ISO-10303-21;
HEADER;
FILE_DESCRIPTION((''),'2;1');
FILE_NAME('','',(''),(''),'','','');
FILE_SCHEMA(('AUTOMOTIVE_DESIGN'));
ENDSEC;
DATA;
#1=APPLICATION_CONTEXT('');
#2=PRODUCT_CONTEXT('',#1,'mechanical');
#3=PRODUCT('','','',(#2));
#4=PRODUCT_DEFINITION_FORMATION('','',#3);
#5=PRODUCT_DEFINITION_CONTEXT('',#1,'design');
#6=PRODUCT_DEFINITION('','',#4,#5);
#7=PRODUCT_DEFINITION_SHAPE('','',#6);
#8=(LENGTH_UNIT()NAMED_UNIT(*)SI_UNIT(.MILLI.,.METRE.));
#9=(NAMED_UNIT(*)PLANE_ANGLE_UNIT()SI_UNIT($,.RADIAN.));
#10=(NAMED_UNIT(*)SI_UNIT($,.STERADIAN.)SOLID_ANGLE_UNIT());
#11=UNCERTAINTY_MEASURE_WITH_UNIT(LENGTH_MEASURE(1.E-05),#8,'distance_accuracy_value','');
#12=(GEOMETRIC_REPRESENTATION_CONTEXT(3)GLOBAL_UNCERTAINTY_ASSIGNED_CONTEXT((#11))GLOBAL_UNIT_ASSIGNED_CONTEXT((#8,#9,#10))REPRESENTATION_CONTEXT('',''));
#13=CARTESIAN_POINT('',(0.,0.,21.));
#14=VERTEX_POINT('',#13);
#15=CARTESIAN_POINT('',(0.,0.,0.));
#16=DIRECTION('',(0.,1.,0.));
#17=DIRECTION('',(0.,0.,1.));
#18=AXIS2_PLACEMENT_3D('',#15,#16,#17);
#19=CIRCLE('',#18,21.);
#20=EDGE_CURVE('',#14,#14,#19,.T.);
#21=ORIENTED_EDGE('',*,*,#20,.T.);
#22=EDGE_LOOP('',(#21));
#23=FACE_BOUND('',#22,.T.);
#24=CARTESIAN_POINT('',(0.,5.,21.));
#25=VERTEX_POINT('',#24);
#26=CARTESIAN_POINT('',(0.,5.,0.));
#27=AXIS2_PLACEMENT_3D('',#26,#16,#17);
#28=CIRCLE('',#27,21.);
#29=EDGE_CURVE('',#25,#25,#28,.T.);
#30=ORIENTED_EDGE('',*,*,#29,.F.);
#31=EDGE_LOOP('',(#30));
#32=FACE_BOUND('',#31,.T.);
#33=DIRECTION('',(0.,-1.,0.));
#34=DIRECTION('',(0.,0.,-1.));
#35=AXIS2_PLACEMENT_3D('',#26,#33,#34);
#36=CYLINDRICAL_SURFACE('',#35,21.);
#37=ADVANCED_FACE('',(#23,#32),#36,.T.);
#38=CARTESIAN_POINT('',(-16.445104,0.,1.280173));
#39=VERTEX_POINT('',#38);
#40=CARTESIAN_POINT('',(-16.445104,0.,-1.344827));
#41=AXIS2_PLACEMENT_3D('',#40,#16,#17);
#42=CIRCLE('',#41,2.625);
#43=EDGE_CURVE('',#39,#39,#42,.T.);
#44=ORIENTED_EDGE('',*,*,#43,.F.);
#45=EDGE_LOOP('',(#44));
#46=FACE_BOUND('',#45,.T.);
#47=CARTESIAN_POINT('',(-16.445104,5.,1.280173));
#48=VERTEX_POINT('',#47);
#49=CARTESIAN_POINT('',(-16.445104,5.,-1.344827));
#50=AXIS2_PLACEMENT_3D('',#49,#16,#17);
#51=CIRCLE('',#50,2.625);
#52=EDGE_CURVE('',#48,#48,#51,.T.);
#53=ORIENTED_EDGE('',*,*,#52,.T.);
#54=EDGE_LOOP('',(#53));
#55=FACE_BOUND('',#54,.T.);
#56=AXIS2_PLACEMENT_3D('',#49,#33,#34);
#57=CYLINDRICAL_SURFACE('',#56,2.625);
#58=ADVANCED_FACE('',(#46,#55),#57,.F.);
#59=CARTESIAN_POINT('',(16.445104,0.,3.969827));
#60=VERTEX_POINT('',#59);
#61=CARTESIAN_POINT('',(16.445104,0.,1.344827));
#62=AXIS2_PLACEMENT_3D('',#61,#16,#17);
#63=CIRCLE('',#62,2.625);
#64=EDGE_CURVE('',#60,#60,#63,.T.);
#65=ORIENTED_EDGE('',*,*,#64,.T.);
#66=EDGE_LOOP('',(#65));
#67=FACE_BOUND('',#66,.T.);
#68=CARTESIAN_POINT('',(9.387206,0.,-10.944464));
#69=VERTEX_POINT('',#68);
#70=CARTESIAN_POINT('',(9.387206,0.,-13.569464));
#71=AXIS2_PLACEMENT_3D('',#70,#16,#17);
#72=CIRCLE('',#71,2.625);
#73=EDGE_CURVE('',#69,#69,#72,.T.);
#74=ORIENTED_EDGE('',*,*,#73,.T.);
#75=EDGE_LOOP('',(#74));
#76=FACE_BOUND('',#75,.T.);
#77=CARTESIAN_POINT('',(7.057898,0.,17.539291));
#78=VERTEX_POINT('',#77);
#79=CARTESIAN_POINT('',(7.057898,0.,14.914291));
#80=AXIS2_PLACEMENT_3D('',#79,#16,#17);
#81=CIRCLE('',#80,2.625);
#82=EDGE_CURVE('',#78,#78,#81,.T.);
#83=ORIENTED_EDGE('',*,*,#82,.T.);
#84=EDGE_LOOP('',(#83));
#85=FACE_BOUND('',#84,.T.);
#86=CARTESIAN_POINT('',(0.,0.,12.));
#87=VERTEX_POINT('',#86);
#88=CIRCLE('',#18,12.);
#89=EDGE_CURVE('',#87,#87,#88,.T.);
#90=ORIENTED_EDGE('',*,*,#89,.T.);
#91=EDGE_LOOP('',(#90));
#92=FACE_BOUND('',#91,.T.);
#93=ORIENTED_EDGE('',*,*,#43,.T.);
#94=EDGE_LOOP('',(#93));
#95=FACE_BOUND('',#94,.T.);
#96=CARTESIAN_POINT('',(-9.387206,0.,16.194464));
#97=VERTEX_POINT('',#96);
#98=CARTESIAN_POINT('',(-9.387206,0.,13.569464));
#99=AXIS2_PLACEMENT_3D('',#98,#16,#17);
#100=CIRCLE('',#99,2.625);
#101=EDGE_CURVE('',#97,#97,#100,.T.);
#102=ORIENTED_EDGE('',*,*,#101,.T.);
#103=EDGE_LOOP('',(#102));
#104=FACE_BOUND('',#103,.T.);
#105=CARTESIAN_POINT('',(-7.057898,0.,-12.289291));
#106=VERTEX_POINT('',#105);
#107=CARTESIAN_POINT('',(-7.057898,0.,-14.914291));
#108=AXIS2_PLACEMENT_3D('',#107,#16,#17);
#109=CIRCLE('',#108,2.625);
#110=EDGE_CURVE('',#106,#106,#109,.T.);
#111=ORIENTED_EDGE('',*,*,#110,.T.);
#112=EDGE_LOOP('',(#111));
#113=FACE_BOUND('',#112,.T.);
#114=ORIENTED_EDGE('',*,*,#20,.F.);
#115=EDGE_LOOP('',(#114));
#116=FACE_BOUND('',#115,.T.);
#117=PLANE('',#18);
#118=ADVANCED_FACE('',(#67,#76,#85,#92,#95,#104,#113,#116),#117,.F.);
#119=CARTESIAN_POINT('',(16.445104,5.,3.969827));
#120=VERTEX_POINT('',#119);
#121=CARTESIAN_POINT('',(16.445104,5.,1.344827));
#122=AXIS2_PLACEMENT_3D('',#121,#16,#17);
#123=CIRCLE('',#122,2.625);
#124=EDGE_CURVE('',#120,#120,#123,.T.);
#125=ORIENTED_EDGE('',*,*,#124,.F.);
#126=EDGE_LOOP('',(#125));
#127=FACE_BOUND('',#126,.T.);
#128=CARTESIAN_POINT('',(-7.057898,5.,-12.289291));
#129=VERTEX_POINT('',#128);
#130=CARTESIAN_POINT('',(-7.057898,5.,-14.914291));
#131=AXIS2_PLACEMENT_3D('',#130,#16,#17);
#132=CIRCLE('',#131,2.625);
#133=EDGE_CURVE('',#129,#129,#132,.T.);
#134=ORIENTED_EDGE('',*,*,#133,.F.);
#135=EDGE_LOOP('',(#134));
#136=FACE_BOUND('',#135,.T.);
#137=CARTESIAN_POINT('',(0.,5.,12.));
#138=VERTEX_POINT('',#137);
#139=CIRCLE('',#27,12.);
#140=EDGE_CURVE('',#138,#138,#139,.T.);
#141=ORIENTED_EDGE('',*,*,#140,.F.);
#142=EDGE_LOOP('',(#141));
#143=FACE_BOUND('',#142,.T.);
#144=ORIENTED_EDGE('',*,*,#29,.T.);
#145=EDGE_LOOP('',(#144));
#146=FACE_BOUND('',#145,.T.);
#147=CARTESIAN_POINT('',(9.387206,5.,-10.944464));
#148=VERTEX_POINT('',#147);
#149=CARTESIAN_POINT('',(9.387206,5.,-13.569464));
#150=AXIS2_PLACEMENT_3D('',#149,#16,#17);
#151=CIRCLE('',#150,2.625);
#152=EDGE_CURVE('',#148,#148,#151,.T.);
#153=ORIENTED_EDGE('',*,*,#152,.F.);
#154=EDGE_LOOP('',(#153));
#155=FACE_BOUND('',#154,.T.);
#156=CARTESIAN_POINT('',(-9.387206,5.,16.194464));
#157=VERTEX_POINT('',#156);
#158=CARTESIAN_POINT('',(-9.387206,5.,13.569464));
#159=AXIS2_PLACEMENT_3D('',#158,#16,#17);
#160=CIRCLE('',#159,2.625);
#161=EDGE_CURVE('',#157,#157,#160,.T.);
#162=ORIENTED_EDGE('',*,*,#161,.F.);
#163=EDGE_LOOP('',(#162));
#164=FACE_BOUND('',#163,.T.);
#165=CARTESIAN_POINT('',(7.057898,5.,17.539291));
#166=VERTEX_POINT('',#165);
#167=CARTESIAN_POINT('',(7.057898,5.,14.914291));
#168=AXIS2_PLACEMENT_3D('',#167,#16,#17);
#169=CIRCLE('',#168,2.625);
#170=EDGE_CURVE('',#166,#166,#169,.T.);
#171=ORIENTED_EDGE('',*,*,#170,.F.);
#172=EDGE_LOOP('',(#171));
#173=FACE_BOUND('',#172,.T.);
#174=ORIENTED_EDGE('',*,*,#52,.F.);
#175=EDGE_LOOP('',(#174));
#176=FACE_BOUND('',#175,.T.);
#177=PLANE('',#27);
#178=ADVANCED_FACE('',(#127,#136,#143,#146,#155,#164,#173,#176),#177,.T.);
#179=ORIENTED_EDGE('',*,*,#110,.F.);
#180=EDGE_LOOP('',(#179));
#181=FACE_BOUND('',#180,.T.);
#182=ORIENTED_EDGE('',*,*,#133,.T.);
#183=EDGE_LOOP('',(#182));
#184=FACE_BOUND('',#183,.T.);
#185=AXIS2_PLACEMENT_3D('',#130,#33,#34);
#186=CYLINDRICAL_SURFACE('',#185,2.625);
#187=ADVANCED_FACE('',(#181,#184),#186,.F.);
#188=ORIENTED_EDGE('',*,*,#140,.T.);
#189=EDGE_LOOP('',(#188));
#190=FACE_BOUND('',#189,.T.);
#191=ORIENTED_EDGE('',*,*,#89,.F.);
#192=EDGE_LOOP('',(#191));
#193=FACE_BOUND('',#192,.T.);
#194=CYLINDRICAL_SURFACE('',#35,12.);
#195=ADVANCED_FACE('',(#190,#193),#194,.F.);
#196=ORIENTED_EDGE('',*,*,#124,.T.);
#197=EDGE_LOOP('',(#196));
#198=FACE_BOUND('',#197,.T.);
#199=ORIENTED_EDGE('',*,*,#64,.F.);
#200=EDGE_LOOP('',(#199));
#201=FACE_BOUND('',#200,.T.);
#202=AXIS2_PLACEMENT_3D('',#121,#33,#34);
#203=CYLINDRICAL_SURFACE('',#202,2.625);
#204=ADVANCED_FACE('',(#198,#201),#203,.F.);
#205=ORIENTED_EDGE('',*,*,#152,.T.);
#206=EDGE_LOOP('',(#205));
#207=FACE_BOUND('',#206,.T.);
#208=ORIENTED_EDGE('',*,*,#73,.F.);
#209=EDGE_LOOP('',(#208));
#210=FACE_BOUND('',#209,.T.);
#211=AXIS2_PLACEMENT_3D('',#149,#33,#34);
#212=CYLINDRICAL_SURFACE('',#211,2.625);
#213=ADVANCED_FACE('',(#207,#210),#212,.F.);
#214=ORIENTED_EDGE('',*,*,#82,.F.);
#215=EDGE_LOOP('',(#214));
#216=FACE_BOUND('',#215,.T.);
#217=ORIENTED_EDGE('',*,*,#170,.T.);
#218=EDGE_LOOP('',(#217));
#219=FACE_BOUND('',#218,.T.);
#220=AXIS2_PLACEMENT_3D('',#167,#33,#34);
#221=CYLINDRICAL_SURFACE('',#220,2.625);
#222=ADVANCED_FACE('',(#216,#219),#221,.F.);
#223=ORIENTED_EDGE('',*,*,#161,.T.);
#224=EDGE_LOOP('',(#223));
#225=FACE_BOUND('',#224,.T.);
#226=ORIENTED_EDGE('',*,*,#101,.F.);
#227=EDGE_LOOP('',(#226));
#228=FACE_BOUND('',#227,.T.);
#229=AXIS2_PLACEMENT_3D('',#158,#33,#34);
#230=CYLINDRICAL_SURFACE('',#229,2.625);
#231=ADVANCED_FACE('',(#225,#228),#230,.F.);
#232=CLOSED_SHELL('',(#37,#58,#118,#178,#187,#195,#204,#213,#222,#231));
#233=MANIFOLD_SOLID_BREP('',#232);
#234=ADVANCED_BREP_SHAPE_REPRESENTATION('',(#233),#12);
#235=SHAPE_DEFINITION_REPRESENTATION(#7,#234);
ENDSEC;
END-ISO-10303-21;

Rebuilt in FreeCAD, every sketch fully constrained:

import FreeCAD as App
import Part
import Sketcher

V = App.Vector

doc = App.newDocument("Part")
body = doc.addObject("PartDesign::Body", "Body")

sketch1 = body.newObject("Sketcher::SketchObject", "Sketch")
sketch1.AttachmentSupport = (doc.getObject("XZ_Plane"), [""])
sketch1.MapMode = "FlatFace"
sketch1.addGeometry([
    Part.Circle(V(0, 0, 0), V(0, 0, 1), 21),
    Part.Circle(V(-9.387206, 13.569464, 0), V(0, 0, 1), 2.625),
    Part.Circle(V(7.057898, 14.914291, 0), V(0, 0, 1), 2.625),
    Part.Circle(V(16.445104, 1.344827, 0), V(0, 0, 1), 2.625),
    Part.Circle(V(-16.445104, -1.344827, 0), V(0, 0, 1), 2.625),
    Part.Circle(V(-7.057898, -14.914291, 0), V(0, 0, 1), 2.625),
    Part.Circle(V(0, 0, 0), V(0, 0, 1), 12),
    Part.Circle(V(9.387206, -13.569464, 0), V(0, 0, 1), 2.625),
], False)
sketch1.addConstraint([
    Sketcher.Constraint("Coincident", 0, 3, -1, 1),
    Sketcher.Constraint("Coincident", 6, 3, -1, 1),
    Sketcher.Constraint("Equal", 1, 2),
    Sketcher.Constraint("Equal", 2, 3),
    Sketcher.Constraint("Equal", 3, 4),
    Sketcher.Constraint("Equal", 4, 5),
    Sketcher.Constraint("Equal", 5, 7),
    Sketcher.Constraint("Symmetric", 3, 3, 4, 3, -1, 1),
    Sketcher.Constraint("Symmetric", 2, 3, 5, 3, -1, 1),
    Sketcher.Constraint("Symmetric", 1, 3, 7, 3, -1, 1),
    Sketcher.Constraint("Diameter", 0, 42.0),
    Sketcher.Constraint("Diameter", 6, 24.0),
    Sketcher.Constraint("Diameter", 1, 5.25),
    Sketcher.Constraint("DistanceX", 4, 3, 2, 3, 23.503002),
    Sketcher.Constraint("DistanceY", -1, 1, 2, 3, 14.914291),
    Sketcher.Constraint("DistanceX", 1, 3, 3, 3, 25.83231),
    Sketcher.Constraint("DistanceY", 4, 3, 1, 3, 14.914291),
    Sketcher.Constraint("DistanceX", 1, 3, -1, 1, 9.387206),
    Sketcher.Constraint("DistanceY", -1, 1, 1, 3, 13.569464),
])
pad1 = body.newObject("PartDesign::Pad", "Pad")
pad1.Profile = sketch1
pad1.Length = 5
pad1.Reversed = True

doc.recompute()
